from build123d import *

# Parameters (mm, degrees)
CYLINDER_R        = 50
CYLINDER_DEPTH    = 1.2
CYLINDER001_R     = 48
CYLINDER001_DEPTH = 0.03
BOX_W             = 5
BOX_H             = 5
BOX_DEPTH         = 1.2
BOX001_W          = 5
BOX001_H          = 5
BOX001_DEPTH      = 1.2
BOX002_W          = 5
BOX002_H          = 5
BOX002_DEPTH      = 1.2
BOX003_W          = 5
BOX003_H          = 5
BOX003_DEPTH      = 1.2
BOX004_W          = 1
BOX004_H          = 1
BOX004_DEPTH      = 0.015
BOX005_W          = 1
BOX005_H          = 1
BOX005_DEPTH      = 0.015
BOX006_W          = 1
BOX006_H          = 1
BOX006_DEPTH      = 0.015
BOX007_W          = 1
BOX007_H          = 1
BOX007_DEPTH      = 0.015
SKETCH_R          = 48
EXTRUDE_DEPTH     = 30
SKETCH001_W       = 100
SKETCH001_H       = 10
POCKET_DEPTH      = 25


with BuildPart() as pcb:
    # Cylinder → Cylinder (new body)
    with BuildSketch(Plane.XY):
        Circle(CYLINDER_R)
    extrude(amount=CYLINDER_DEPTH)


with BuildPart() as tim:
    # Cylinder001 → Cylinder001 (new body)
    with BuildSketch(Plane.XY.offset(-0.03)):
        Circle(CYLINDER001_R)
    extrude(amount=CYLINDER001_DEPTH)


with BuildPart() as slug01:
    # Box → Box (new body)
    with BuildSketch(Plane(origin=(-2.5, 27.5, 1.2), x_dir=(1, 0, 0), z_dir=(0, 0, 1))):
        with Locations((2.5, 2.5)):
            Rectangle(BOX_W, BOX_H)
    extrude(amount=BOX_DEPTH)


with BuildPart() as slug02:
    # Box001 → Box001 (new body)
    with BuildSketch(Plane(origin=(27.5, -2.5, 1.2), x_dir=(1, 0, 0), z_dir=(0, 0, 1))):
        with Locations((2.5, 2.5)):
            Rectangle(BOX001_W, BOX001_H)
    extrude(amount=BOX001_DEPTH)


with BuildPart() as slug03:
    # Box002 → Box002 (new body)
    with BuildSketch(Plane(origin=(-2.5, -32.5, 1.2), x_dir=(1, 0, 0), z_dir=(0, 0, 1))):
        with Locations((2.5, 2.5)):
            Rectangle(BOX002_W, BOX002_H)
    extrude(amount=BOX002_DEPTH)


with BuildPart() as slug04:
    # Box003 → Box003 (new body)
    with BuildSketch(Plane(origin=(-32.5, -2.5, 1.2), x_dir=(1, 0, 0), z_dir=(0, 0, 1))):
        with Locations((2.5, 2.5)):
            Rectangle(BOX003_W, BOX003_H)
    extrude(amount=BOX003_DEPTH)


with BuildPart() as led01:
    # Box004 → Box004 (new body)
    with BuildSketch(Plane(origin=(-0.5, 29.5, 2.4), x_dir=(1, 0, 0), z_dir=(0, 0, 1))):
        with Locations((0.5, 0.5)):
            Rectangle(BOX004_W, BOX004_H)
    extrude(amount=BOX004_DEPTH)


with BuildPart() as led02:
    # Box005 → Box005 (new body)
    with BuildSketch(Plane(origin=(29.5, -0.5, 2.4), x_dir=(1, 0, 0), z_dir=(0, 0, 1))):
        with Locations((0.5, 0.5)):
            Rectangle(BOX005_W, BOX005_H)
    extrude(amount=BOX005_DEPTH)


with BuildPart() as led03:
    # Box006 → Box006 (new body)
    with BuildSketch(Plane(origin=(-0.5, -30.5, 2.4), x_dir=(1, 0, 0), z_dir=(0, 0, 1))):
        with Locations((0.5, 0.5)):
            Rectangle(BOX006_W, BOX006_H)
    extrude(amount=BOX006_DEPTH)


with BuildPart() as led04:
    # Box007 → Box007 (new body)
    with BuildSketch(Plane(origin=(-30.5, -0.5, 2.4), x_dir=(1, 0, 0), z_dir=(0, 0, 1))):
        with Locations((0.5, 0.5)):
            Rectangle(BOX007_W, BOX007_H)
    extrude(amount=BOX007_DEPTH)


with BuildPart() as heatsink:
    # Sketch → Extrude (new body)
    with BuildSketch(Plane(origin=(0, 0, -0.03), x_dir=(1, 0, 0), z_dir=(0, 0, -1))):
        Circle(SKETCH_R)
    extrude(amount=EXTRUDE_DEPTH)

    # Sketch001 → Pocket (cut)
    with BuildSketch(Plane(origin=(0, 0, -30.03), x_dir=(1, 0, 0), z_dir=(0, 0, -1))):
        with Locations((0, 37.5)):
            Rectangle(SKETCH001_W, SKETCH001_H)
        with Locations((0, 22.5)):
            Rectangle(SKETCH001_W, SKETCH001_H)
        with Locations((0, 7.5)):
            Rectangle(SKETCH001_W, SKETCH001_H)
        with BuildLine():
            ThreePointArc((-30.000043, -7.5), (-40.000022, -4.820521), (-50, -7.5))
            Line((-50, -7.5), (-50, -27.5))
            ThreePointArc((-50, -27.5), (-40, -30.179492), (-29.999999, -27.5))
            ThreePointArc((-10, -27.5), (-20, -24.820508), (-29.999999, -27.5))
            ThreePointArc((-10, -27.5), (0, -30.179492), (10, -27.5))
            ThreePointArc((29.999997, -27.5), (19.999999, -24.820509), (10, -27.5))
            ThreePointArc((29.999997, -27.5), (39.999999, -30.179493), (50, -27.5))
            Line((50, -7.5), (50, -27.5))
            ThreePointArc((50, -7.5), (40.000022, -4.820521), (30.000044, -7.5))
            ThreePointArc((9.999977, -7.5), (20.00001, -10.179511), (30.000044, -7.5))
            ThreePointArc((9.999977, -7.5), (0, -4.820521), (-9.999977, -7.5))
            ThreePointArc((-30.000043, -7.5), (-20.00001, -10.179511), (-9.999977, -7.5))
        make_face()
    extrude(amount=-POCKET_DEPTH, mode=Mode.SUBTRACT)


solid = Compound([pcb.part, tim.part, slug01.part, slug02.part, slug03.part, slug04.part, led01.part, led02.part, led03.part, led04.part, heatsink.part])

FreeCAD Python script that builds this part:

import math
import FreeCAD as App
import Part
import Sketcher
from FreeCAD import Vector
Q = App.Units.Quantity


def add_polygon(sketch, points):
    """Adds a closed chain of lines whose ends are joined by coincident constraints."""
    first, n = sketch.GeometryCount, len(points)
    for a, b in zip(points, points[1:] + points[:1]):
        sketch.addGeometry(Part.LineSegment(App.Vector(*a, 0), App.Vector(*b, 0)), False)
    for i in range(n):
        sketch.addConstraint(Sketcher.Constraint("Coincident", first + i, 2, first + (i + 1) % n, 1))

doc = App.newDocument("Part")
body = doc.addObject("PartDesign::Body", "Body")

# Sketch on XY plane
sketch1 = doc.addObject("Sketcher::SketchObject", "Sketch")
body.addObject(sketch1)
sketch1.AttachmentSupport = (doc.XY_Plane, [""])
sketch1.MapMode = "FlatFace"
sketch1.addGeometry(Part.Circle(Vector(0, 0, 0), Vector(0, 0, 1), 50), False)
sketch1.addConstraint([
    Sketcher.Constraint("Coincident", 0, 3, -1, 1),
    Sketcher.Constraint("Diameter", 0, Q("100 mm")),
])
pad1 = doc.addObject("PartDesign::Pad", "Pad")
body.addObject(pad1)
pad1.Profile = sketch1
pad1.Length = 1.2
body2 = doc.addObject("PartDesign::Body", "Body001")

# Sketch on XY plane
sketch2 = doc.addObject("Sketcher::SketchObject", "Sketch001")
body2.addObject(sketch2)
sketch2.AttachmentSupport = (doc.getObject("XY_Plane001"), [""])
sketch2.MapMode = "FlatFace"
sketch2.AttachmentOffset = App.Placement(Vector(0, 0, -0.03), App.Rotation())
sketch2.addGeometry(Part.Circle(Vector(0, 0, 0), Vector(0, 0, 1), 48), False)
sketch2.addConstraint([
    Sketcher.Constraint("Coincident", 0, 3, -1, 1),
    Sketcher.Constraint("Diameter", 0, Q("96 mm")),
])
pad2 = doc.addObject("PartDesign::Pad", "Pad001")
body2.addObject(pad2)
pad2.Profile = sketch2
pad2.Length = 0.03
body3 = doc.addObject("PartDesign::Body", "Body002")

# Sketch on XY plane
sketch3 = doc.addObject("Sketcher::SketchObject", "Sketch002")
body3.addObject(sketch3)
sketch3.AttachmentSupport = (doc.getObject("XY_Plane002"), [""])
sketch3.MapMode = "FlatFace"
sketch3.AttachmentOffset = App.Placement(Vector(0, 0, 1.2), App.Rotation())
add_polygon(sketch3, [(-2, 32), (-2, 28), (2, 28), (2, 32)])  # lines 0-3
sketch3.addConstraint([
    Sketcher.Constraint("Vertical", 0),
    Sketcher.Constraint("Horizontal", 1),
    Sketcher.Constraint("Vertical", 2),
    Sketcher.Constraint("Horizontal", 3),
    Sketcher.Constraint("Equal", 3, 0),
    Sketcher.Constraint("DistanceX", 1, 1, 1, 2, Q("5 mm")),
    Sketcher.Constraint("DistanceX", 0, 2, -1, 1, Q("2.5 mm")),
    Sketcher.Constraint("DistanceY", -1, 1, 0, 2, Q("27.5 mm")),
])
pad3 = doc.addObject("PartDesign::Pad", "Pad002")
body3.addObject(pad3)
pad3.Profile = sketch3
pad3.Length = 1.2
body4 = doc.addObject("PartDesign::Body", "Body003")

# Sketch on XY plane
sketch4 = doc.addObject("Sketcher::SketchObject", "Sketch003")
body4.addObject(sketch4)
sketch4.AttachmentSupport = (doc.getObject("XY_Plane003"), [""])
sketch4.MapMode = "FlatFace"
sketch4.AttachmentOffset = App.Placement(Vector(0, 0, 1.2), App.Rotation())
add_polygon(sketch4, [(28, 2), (28, -2), (32, -2), (32, 2)])  # lines 0-3
sketch4.addConstraint([
    Sketcher.Constraint("Vertical", 0),
    Sketcher.Constraint("Horizontal", 1),
    Sketcher.Constraint("Vertical", 2),
    Sketcher.Constraint("Horizontal", 3),
    Sketcher.Constraint("Equal", 3, 0),
    Sketcher.Constraint("DistanceX", 1, 1, 1, 2, Q("5 mm")),
    Sketcher.Constraint("DistanceX", -1, 1, 0, 2, Q("27.5 mm")),
    Sketcher.Constraint("DistanceY", 0, 2, -1, 1, Q("2.5 mm")),
])
pad4 = doc.addObject("PartDesign::Pad", "Pad003")
body4.addObject(pad4)
pad4.Profile = sketch4
pad4.Length = 1.2
body5 = doc.addObject("PartDesign::Body", "Body004")

# Sketch on XY plane
sketch5 = doc.addObject("Sketcher::SketchObject", "Sketch004")
body5.addObject(sketch5)
sketch5.AttachmentSupport = (doc.getObject("XY_Plane004"), [""])
sketch5.MapMode = "FlatFace"
sketch5.AttachmentOffset = App.Placement(Vector(0, 0, 1.2), App.Rotation())
add_polygon(sketch5, [(-2, -28), (-2, -32), (2, -32), (2, -28)])  # lines 0-3
sketch5.addConstraint([
    Sketcher.Constraint("Vertical", 0),
    Sketcher.Constraint("Horizontal", 1),
    Sketcher.Constraint("Vertical", 2),
    Sketcher.Constraint("Horizontal", 3),
    Sketcher.Constraint("Equal", 3, 0),
    Sketcher.Constraint("DistanceX", 1, 1, 1, 2, Q("5 mm")),
    Sketcher.Constraint("DistanceX", 0, 2, -1, 1, Q("2.5 mm")),
    Sketcher.Constraint("DistanceY", 0, 2, -1, 1, Q("32.5 mm")),
])
pad5 = doc.addObject("PartDesign::Pad", "Pad004")
body5.addObject(pad5)
pad5.Profile = sketch5
pad5.Length = 1.2
body6 = doc.addObject("PartDesign::Body", "Body005")

# Sketch on XY plane
sketch6 = doc.addObject("Sketcher::SketchObject", "Sketch005")
body6.addObject(sketch6)
sketch6.AttachmentSupport = (doc.getObject("XY_Plane005"), [""])
sketch6.MapMode = "FlatFace"
sketch6.AttachmentOffset = App.Placement(Vector(0, 0, 1.2), App.Rotation())
add_polygon(sketch6, [(-32, 2), (-32, -2), (-28, -2), (-28, 2)])  # lines 0-3
sketch6.addConstraint([
    Sketcher.Constraint("Vertical", 0),
    Sketcher.Constraint("Horizontal", 1),
    Sketcher.Constraint("Vertical", 2),
    Sketcher.Constraint("Horizontal", 3),
    Sketcher.Constraint("Equal", 3, 0),
    Sketcher.Constraint("DistanceX", 1, 1, 1, 2, Q("5 mm")),
    Sketcher.Constraint("DistanceX", 0, 2, -1, 1, Q("32.5 mm")),
    Sketcher.Constraint("DistanceY", 0, 2, -1, 1, Q("2.5 mm")),
])
pad6 = doc.addObject("PartDesign::Pad", "Pad005")
body6.addObject(pad6)
pad6.Profile = sketch6
pad6.Length = 1.2
body7 = doc.addObject("PartDesign::Body", "Body006")

# Sketch on XY plane
sketch7 = doc.addObject("Sketcher::SketchObject", "Sketch006")
body7.addObject(sketch7)
sketch7.AttachmentSupport = (doc.getObject("XY_Plane006"), [""])
sketch7.MapMode = "FlatFace"
sketch7.AttachmentOffset = App.Placement(Vector(0, 0, 2.4), App.Rotation())
add_polygon(sketch7, [(-0.5, 30.5), (-0.5, 29.5), (0.5, 29.5), (0.5, 30.5)])  # lines 0-3
sketch7.addConstraint([
    Sketcher.Constraint("Vertical", 0),
    Sketcher.Constraint("Horizontal", 1),
    Sketcher.Constraint("Vertical", 2),
    Sketcher.Constraint("Horizontal", 3),
    Sketcher.Constraint("Equal", 3, 0),
    Sketcher.Constraint("DistanceX", 1, 1, 1, 2, Q("1 mm")),
    Sketcher.Constraint("DistanceX", 0, 2, -1, 1, Q("0.5 mm")),
    Sketcher.Constraint("DistanceY", -1, 1, 0, 2, Q("29.5 mm")),
])
pad7 = doc.addObject("PartDesign::Pad", "Pad006")
body7.addObject(pad7)
pad7.Profile = sketch7
pad7.Length = 0.015
body8 = doc.addObject("PartDesign::Body", "Body007")

# Sketch on XY plane
sketch8 = doc.addObject("Sketcher::SketchObject", "Sketch007")
body8.addObject(sketch8)
sketch8.AttachmentSupport = (doc.getObject("XY_Plane007"), [""])
sketch8.MapMode = "FlatFace"
sketch8.AttachmentOffset = App.Placement(Vector(0, 0, 2.4), App.Rotation())
add_polygon(sketch8, [(29.5, 0.5), (29.5, -0.5), (30.5, -0.5), (30.5, 0.5)])  # lines 0-3
sketch8.addConstraint([
    Sketcher.Constraint("Vertical", 0),
    Sketcher.Constraint("Horizontal", 1),
    Sketcher.Constraint("Vertical", 2),
    Sketcher.Constraint("Horizontal", 3),
    Sketcher.Constraint("Equal", 3, 0),
    Sketcher.Constraint("DistanceX", 1, 1, 1, 2, Q("1 mm")),
    Sketcher.Constraint("DistanceX", -1, 1, 0, 2, Q("29.5 mm")),
    Sketcher.Constraint("DistanceY", 0, 2, -1, 1, Q("0.5 mm")),
])
pad8 = doc.addObject("PartDesign::Pad", "Pad007")
body8.addObject(pad8)
pad8.Profile = sketch8
pad8.Length = 0.015
body9 = doc.addObject("PartDesign::Body", "Body008")

# Sketch on XY plane
sketch9 = doc.addObject("Sketcher::SketchObject", "Sketch008")
body9.addObject(sketch9)
sketch9.AttachmentSupport = (doc.getObject("XY_Plane008"), [""])
sketch9.MapMode = "FlatFace"
sketch9.AttachmentOffset = App.Placement(Vector(0, 0, 2.4), App.Rotation())
add_polygon(sketch9, [(-0.5, -29.5), (-0.5, -30.5), (0.5, -30.5), (0.5, -29.5)])  # lines 0-3
sketch9.addConstraint([
    Sketcher.Constraint("Vertical", 0),
    Sketcher.Constraint("Horizontal", 1),
    Sketcher.Constraint("Vertical", 2),
    Sketcher.Constraint("Horizontal", 3),
    Sketcher.Constraint("Equal", 3, 0),
    Sketcher.Constraint("DistanceX", 1, 1, 1, 2, Q("1 mm")),
    Sketcher.Constraint("DistanceX", 0, 2, -1, 1, Q("0.5 mm")),
    Sketcher.Constraint("DistanceY", 0, 2, -1, 1, Q("30.5 mm")),
])
pad9 = doc.addObject("PartDesign::Pad", "Pad008")
body9.addObject(pad9)
pad9.Profile = sketch9
pad9.Length = 0.015
body10 = doc.addObject("PartDesign::Body", "Body009")

# Sketch on XY plane
sketch10 = doc.addObject("Sketcher::SketchObject", "Sketch009")
body10.addObject(sketch10)
sketch10.AttachmentSupport = (doc.getObject("XY_Plane009"), [""])
sketch10.MapMode = "FlatFace"
sketch10.AttachmentOffset = App.Placement(Vector(0, 0, 2.4), App.Rotation())
add_polygon(sketch10, [(-30.5, 0.5), (-30.5, -0.5), (-29.5, -0.5), (-29.5, 0.5)])  # lines 0-3
sketch10.addConstraint([
    Sketcher.Constraint("Vertical", 0),
    Sketcher.Constraint("Horizontal", 1),
    Sketcher.Constraint("Vertical", 2),
    Sketcher.Constraint("Horizontal", 3),
    Sketcher.Constraint("Equal", 3, 0),
    Sketcher.Constraint("DistanceX", 1, 1, 1, 2, Q("1 mm")),
    Sketcher.Constraint("DistanceX", 0, 2, -1, 1, Q("30.5 mm")),
    Sketcher.Constraint("DistanceY", 0, 2, -1, 1, Q("0.5 mm")),
])
pad10 = doc.addObject("PartDesign::Pad", "Pad009")
body10.addObject(pad10)
pad10.Profile = sketch10
pad10.Length = 0.015
body11 = doc.addObject("PartDesign::Body", "Body010")

# Sketch on XY plane
sketch11 = doc.addObject("Sketcher::SketchObject", "Sketch010")
body11.addObject(sketch11)
sketch11.AttachmentSupport = (doc.getObject("XY_Plane010"), [""])
sketch11.MapMode = "FlatFace"
sketch11.AttachmentOffset = App.Placement(Vector(0, 0, -0.03), App.Rotation())
sketch11.addGeometry(Part.Circle(Vector(0, 0, 0), Vector(0, 0, 1), 48), False)
sketch11.addConstraint([
    Sketcher.Constraint("Coincident", 0, 3, -1, 1),
    Sketcher.Constraint("Diameter", 0, Q("96 mm")),
])
pad11 = doc.addObject("PartDesign::Pad", "Pad010")
body11.addObject(pad11)
pad11.Profile = sketch11
pad11.Length = 30
pad11.Reversed = True

# Sketch on XY plane
sketch12 = doc.addObject("Sketcher::SketchObject", "Sketch011")
body11.addObject(sketch12)
sketch12.AttachmentSupport = (doc.getObject("XY_Plane010"), [""])
sketch12.MapMode = "FlatFace"
sketch12.AttachmentOffset = App.Placement(Vector(0, 0, -30.03), App.Rotation())
add_polygon(sketch12, [(-50, -42), (-50, -32), (50, -32), (50, -42)])  # lines 0-3
add_polygon(sketch12, [(-50, -28), (-50, -18), (50, -18), (50, -28)])  # lines 4-7
add_polygon(sketch12, [(-50, -12), (-50, -2), (50, -2), (50, -12)])  # lines 8-11
sketch12.addGeometry(Part.ArcOfCircle(Part.Circle(Vector(-40, 25, 0), Vector(0, 0, 1), 20), math.radians(-120), math.radians(-60)), False)  # 12
sketch12.addGeometry(Part.LineSegment(Vector(-50, 8, 0), Vector(-50, 28, 0)), False)  # 13
sketch12.addGeometry(Part.ArcOfCircle(Part.Circle(Vector(-40, 10, 0), Vector(0, 0, 1), 20), math.radians(60), math.radians(120)), False)  # 14
sketch12.addGeometry(Part.ArcOfCircle(Part.Circle(Vector(-20, 45, 0), Vector(0, 0, 1), 20), math.radians(-120), math.radians(-60)), False)  # 15
sketch12.addGeometry(Part.ArcOfCircle(Part.Circle(Vector(0, 10, 0), Vector(0, 0, 1), 20), math.radians(60), math.radians(120)), False)  # 16
sketch12.addGeometry(Part.ArcOfCircle(Part.Circle(Vector(20, 45, 0), Vector(0, 0, 1), 20), math.radians(-120), math.radians(-60)), False)  # 17
sketch12.addGeometry(Part.ArcOfCircle(Part.Circle(Vector(40, 10, 0), Vector(0, 0, 1), 20), math.radians(60), math.radians(120)), False)  # 18
sketch12.addGeometry(Part.LineSegment(Vector(50, 28, 0), Vector(50, 8, 0)), False)  # 19
sketch12.addGeometry(Part.ArcOfCircle(Part.Circle(Vector(40, 25, 0), Vector(0, 0, 1), 20), math.radians(-120), math.radians(-60)), False)  # 20
sketch12.addGeometry(Part.ArcOfCircle(Part.Circle(Vector(20, -10, 0), Vector(0, 0, 1), 20), math.radians(60), math.radians(120)), False)  # 21
sketch12.addGeometry(Part.ArcOfCircle(Part.Circle(Vector(0, 25, 0), Vector(0, 0, 1), 20), math.radians(-120), math.radians(-60)), False)  # 22
sketch12.addGeometry(Part.ArcOfCircle(Part.Circle(Vector(-20, -10, 0), Vector(0, 0, 1), 20), math.radians(60), math.radians(120)), False)  # 23
sketch12.addConstraint([
    Sketcher.Constraint("Coincident", 12, 1, 13, 1),
    Sketcher.Constraint("Coincident", 13, 2, 14, 2),
    Sketcher.Constraint("Tangent", 14, 1, 15, 1),
    Sketcher.Constraint("Tangent", 15, 2, 16, 2),
    Sketcher.Constraint("Tangent", 16, 1, 17, 1),
    Sketcher.Constraint("Tangent", 17, 2, 18, 2),
    Sketcher.Constraint("Coincident", 18, 1, 19, 1),
    Sketcher.Constraint("Coincident", 19, 2, 20, 2),
    Sketcher.Constraint("Coincident", 20, 1, 21, 1),
    Sketcher.Constraint("Coincident", 21, 2, 22, 2),
    Sketcher.Constraint("Coincident", 22, 1, 23, 1),
    Sketcher.Constraint("Coincident", 23, 2, 12, 2),
    Sketcher.Constraint("Vertical", 0),
    Sketcher.Constraint("Horizontal", 1),
    Sketcher.Constraint("Vertical", 2),
    Sketcher.Constraint("Horizontal", 3),
    Sketcher.Constraint("Vertical", 4),
    Sketcher.Constraint("Horizontal", 5),
    Sketcher.Constraint("Vertical", 6),
    Sketcher.Constraint("Horizontal", 7),
    Sketcher.Constraint("Vertical", 8),
    Sketcher.Constraint("Horizontal", 9),
    Sketcher.Constraint("Vertical", 10),
    Sketcher.Constraint("Horizontal", 11),
    Sketcher.Constraint("Vertical", 13),
    Sketcher.Constraint("Vertical", 19),
    Sketcher.Constraint("Equal", 12, 14),
    Sketcher.Constraint("Equal", 15, 16),
    Sketcher.Constraint("Equal", 16, 17),
    Sketcher.Constraint("Equal", 17, 18),
    Sketcher.Constraint("Equal", 17, 20),
    Sketcher.Constraint("Equal", 20, 21),
    Sketcher.Constraint("Equal", 18, 22),
    Sketcher.Constraint("Equal", 21, 23),
    Sketcher.Constraint("Symmetric", 6, 2, 13, 2, -1, 1),
    Sketcher.Constraint("Symmetric", 7, 2, 18, 1, -1, 1),
    Sketcher.Constraint("Symmetric", 15, 3, 17, 3, -2),
    Sketcher.Constraint("Symmetric", 14, 3, 18, 3, -2),
    Sketcher.Constraint("Symmetric", 12, 3, 20, 3, -2),
    Sketcher.Constraint("Symmetric", 21, 2, 22, 1, -2),
    Sketcher.Constraint("Horizontal", 14, 3, 16, 3),
    Sketcher.Constraint("Horizontal", 13, 2, 14, 1),
    Sketcher.Constraint("Horizontal", 19, 2, 20, 1),
    Sketcher.Constraint("Horizontal", 20, 1, 21, 2),
    Sketcher.Constraint("Horizontal", 22, 1, 23, 2),
    Sketcher.Constraint("Vertical", 3, 2, 4, 2),
    Sketcher.Constraint("Vertical", 2, 2, 5, 2),
    Sketcher.Constraint("Vertical", 7, 2, 8, 2),
    Sketcher.Constraint("Vertical", 6, 2, 9, 2),
    Sketcher.Constraint("Equal", 2, 4),
    Sketcher.Constraint("Equal", 6, 8),
    Sketcher.Constraint("Radius", 14, Q("20.000001 mm")),
    Sketcher.Constraint("DistanceX", 1, 1, 1, 2, Q("100 mm")),
    Sketcher.Constraint("DistanceY", 0, 1, 0, 2, Q("10 mm")),
    Sketcher.Constraint("DistanceY", 13, 1, 13, 2, Q("20 mm")),
    Sketcher.Constraint("DistanceY", 0, 2, 4, 2, Q("15 mm")),
    Sketcher.Constraint("DistanceY", 4, 2, 8, 2, Q("15 mm")),
    Sketcher.Constraint("DistanceY", 8, 2, 12, 1, Q("10 mm")),
    Sketcher.Constraint("DistanceY", 21, 3, 17, 3, Q("54.641 mm")),
    Sketcher.Constraint("DistanceX", 12, 3, -1, 1, Q("40.000022 mm")),
])
pocket1 = doc.addObject("PartDesign::Pocket", "Pocket")
body11.addObject(pocket1)
pocket1.Profile = sketch12
pocket1.Length = 25
pocket1.Reversed = True

doc.recompute()
